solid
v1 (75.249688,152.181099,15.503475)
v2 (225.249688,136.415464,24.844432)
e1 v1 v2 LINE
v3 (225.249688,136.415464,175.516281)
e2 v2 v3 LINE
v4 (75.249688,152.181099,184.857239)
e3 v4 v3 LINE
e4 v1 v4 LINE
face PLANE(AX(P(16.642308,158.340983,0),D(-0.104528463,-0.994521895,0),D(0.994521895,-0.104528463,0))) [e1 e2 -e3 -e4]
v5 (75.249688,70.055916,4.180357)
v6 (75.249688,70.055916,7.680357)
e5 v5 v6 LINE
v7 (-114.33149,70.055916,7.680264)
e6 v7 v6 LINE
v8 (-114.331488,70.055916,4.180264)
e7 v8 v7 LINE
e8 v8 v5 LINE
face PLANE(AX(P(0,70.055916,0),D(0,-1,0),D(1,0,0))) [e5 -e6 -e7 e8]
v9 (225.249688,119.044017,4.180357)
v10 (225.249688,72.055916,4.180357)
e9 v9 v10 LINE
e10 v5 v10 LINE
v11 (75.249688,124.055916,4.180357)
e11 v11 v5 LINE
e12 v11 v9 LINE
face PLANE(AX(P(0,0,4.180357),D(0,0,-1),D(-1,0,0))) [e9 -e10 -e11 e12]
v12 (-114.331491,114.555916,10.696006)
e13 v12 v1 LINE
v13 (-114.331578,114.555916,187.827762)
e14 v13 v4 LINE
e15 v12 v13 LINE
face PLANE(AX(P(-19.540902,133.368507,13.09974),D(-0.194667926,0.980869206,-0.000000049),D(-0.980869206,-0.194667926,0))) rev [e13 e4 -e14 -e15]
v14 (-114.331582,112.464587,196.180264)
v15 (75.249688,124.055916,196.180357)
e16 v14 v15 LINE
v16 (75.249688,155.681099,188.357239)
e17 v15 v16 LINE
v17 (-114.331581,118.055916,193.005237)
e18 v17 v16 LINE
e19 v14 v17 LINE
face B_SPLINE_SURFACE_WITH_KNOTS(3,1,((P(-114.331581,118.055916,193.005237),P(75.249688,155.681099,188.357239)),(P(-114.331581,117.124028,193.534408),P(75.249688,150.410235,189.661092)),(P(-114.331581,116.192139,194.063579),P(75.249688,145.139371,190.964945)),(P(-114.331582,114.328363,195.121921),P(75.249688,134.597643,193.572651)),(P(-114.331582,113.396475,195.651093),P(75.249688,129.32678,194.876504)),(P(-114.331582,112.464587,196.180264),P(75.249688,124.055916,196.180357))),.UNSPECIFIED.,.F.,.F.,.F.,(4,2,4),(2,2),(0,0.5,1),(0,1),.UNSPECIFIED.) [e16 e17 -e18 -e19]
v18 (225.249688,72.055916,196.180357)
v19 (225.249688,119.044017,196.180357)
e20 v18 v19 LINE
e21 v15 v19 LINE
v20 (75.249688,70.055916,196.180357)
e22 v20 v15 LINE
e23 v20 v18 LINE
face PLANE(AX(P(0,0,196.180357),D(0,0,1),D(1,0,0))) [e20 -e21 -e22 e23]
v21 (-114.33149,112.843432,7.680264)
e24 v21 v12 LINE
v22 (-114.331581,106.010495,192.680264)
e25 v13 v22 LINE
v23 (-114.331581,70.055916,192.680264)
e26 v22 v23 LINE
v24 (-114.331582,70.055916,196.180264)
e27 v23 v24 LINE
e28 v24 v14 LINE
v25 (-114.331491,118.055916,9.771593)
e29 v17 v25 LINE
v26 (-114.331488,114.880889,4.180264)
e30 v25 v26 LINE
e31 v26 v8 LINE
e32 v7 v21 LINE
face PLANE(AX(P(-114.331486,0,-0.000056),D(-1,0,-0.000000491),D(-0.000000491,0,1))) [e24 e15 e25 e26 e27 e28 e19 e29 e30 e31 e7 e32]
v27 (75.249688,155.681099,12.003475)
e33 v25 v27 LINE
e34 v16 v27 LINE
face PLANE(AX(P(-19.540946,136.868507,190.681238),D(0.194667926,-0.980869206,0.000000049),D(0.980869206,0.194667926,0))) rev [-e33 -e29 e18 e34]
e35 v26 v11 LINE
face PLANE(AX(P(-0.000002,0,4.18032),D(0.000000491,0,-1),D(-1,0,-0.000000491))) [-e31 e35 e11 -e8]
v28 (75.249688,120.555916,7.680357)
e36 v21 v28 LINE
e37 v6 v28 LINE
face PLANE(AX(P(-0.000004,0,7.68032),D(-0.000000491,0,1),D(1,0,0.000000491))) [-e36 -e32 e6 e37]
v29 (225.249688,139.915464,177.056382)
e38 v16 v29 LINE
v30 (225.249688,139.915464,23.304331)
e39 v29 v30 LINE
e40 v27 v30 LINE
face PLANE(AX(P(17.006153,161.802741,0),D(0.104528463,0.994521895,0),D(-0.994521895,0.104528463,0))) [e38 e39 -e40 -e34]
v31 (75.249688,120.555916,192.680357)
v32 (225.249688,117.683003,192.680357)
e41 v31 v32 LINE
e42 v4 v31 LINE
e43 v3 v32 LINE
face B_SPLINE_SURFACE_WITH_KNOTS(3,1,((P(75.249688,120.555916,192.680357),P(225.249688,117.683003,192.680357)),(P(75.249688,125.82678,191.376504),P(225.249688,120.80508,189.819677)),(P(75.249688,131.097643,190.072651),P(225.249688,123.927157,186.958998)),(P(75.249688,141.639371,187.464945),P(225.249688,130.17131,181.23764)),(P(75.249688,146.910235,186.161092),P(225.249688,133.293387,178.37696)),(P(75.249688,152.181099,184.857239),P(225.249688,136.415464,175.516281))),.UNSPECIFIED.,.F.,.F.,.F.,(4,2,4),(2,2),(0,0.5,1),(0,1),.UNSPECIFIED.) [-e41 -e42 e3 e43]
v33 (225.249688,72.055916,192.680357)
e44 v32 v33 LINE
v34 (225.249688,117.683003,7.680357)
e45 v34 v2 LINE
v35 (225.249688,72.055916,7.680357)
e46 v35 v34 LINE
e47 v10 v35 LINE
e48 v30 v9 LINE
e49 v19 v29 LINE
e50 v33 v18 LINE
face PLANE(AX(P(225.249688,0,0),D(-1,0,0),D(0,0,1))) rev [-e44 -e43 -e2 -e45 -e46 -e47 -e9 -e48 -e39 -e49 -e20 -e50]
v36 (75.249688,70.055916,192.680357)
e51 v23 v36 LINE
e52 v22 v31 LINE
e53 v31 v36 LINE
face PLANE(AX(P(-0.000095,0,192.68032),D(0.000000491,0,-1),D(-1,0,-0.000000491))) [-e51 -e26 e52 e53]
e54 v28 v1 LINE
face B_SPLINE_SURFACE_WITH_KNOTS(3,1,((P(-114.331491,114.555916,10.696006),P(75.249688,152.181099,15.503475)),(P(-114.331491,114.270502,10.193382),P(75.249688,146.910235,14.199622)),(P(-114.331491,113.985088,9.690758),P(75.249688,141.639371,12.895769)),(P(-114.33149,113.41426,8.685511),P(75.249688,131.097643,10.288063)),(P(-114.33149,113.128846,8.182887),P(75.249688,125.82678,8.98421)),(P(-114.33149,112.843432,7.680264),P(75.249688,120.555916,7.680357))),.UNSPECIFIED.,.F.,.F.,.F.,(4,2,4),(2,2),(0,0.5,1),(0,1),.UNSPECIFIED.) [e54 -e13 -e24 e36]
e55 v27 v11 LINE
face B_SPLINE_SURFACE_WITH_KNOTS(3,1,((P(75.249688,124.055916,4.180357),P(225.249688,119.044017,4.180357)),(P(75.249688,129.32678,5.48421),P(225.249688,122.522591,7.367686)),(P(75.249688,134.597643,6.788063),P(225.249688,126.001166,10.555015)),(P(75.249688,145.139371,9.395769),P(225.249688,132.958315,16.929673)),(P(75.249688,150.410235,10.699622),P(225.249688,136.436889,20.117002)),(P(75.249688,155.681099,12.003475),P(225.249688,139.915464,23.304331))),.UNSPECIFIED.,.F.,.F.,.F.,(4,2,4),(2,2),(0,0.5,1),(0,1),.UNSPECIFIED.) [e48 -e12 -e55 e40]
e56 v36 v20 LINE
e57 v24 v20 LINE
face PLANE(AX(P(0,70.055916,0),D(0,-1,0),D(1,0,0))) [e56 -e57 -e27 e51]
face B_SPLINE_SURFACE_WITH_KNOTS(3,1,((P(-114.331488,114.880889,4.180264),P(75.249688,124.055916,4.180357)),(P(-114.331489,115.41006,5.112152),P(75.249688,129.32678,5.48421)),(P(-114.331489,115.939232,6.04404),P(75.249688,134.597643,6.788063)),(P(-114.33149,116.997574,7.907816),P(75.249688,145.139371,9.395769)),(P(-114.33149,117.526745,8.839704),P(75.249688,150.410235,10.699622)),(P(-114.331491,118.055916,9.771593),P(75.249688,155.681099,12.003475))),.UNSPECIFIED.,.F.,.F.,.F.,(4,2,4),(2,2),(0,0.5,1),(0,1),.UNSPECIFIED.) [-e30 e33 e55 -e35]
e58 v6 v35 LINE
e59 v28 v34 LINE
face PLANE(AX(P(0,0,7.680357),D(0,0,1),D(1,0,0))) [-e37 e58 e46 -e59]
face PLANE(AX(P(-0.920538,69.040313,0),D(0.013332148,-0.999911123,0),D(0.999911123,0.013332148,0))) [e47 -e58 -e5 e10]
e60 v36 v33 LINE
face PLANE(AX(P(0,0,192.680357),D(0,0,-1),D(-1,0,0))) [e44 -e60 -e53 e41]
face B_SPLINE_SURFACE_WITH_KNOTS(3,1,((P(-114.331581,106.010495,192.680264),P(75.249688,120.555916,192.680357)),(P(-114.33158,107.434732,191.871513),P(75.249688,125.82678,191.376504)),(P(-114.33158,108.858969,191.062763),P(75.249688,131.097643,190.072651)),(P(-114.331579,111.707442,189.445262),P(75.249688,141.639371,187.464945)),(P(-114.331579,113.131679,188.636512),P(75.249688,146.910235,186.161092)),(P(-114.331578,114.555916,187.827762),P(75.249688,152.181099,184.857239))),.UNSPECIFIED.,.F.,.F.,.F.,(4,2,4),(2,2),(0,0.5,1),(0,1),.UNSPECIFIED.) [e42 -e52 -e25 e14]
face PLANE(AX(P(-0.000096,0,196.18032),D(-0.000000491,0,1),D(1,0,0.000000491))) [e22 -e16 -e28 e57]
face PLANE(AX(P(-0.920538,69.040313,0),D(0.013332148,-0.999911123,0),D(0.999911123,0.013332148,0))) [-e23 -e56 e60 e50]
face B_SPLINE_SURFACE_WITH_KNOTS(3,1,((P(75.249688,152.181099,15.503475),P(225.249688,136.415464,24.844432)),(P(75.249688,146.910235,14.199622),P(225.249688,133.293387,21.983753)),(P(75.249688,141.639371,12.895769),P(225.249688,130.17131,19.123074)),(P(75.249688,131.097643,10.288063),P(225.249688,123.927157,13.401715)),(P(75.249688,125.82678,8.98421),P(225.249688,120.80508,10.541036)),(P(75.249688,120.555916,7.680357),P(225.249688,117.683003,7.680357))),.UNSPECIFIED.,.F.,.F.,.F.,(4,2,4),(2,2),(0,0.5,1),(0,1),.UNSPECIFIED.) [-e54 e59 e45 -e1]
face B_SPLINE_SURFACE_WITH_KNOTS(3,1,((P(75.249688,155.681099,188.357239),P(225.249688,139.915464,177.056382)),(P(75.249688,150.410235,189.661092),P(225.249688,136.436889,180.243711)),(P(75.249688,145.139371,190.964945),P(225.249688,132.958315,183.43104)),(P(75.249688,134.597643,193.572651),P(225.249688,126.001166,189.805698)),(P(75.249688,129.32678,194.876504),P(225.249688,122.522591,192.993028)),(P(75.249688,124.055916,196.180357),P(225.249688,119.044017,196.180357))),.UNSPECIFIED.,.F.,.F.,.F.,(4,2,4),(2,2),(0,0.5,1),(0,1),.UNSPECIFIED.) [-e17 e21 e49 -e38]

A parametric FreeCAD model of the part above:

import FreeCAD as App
import Part
import Sketcher
Q = App.Units.Quantity

doc = App.newDocument("Part")
body = doc.addObject("PartDesign::Body", "Body")

# Sketch on YZ plane
sketch1 = body.newObject("Sketcher::SketchObject", "Sketch")
sketch1.AttachmentSupport = (doc.getObject("YZ_Plane"), [""])
sketch1.MapMode = "FlatFace"
sketch1.AttachmentOffset = App.Placement(App.Vector(0, 0, -114.331486), App.Rotation())
sketch1.addGeometry(Part.LineSegment(App.Vector(70.1, 4.2, 0), App.Vector(70.1, 7.7, 0)), False)
sketch1.addGeometry(Part.LineSegment(App.Vector(70.1, 7.7, 0), App.Vector(112.8, 7.7, 0)), False)
sketch1.addGeometry(Part.LineSegment(App.Vector(112.8, 7.7, 0), App.Vector(114.6, 10.7, 0)), False)
sketch1.addGeometry(Part.LineSegment(App.Vector(114.6, 10.7, 0), App.Vector(114.6, 187.8, 0)), False)
sketch1.addGeometry(Part.LineSegment(App.Vector(114.6, 187.8, 0), App.Vector(106, 192.7, 0)), False)
sketch1.addGeometry(Part.LineSegment(App.Vector(106, 192.7, 0), App.Vector(70.1, 192.7, 0)), False)
sketch1.addGeometry(Part.LineSegment(App.Vector(70.1, 192.7, 0), App.Vector(70.1, 196.2, 0)), False)
sketch1.addGeometry(Part.LineSegment(App.Vector(70.1, 196.2, 0), App.Vector(112.5, 196.2, 0)), False)
sketch1.addGeometry(Part.LineSegment(App.Vector(112.5, 196.2, 0), App.Vector(118.1, 193, 0)), False)
sketch1.addGeometry(Part.LineSegment(App.Vector(118.1, 193, 0), App.Vector(118.1, 9.8, 0)), False)
sketch1.addGeometry(Part.LineSegment(App.Vector(118.1, 9.8, 0), App.Vector(114.9, 4.2, 0)), False)
sketch1.addGeometry(Part.LineSegment(App.Vector(114.9, 4.2, 0), App.Vector(70.1, 4.2, 0)), False)
sketch1.addConstraint(Sketcher.Constraint("Coincident", 0, 2, 1, 1))
sketch1.addConstraint(Sketcher.Constraint("Coincident", 1, 2, 2, 1))
sketch1.addConstraint(Sketcher.Constraint("Coincident", 2, 2, 3, 1))
sketch1.addConstraint(Sketcher.Constraint("Coincident", 3, 2, 4, 1))
sketch1.addConstraint(Sketcher.Constraint("Coincident", 4, 2, 5, 1))
sketch1.addConstraint(Sketcher.Constraint("Coincident", 5, 2, 6, 1))
sketch1.addConstraint(Sketcher.Constraint("Coincident", 6, 2, 7, 1))
sketch1.addConstraint(Sketcher.Constraint("Coincident", 7, 2, 8, 1))
sketch1.addConstraint(Sketcher.Constraint("Coincident", 8, 2, 9, 1))
sketch1.addConstraint(Sketcher.Constraint("Coincident", 9, 2, 10, 1))
sketch1.addConstraint(Sketcher.Constraint("Coincident", 10, 2, 11, 1))
sketch1.addConstraint(Sketcher.Constraint("Coincident", 11, 2, 0, 1))
sketch1.addConstraint(Sketcher.Constraint("Vertical", 0))
sketch1.addConstraint(Sketcher.Constraint("Horizontal", 1))
sketch1.addConstraint(Sketcher.Constraint("Vertical", 3))
sketch1.addConstraint(Sketcher.Constraint("Horizontal", 5))
sketch1.addConstraint(Sketcher.Constraint("Vertical", 6))
sketch1.addConstraint(Sketcher.Constraint("Horizontal", 7))
sketch1.addConstraint(Sketcher.Constraint("Vertical", 9))
sketch1.addConstraint(Sketcher.Constraint("Horizontal", 11))
sketch1.addConstraint(Sketcher.Constraint("Perpendicular", 2, 4))
sketch1.addConstraint(Sketcher.Constraint("Parallel", 4, 8))
sketch1.addConstraint(Sketcher.Constraint("Perpendicular", 8, 10))
sketch1.addConstraint(Sketcher.Constraint("Vertical", 0, 2, 5, 2))
sketch1.addConstraint(Sketcher.Constraint("Equal", 0, 6))
sketch1.addConstraint(Sketcher.Constraint("Equal", 8, 10))
sketch1.addConstraint(Sketcher.Constraint("DistanceY", 0, 1, 0, 2, Q("3.5 mm")))
sketch1.addConstraint(Sketcher.Constraint("DistanceY", 1, 2, 4, 2, Q("185 mm")))
sketch1.addConstraint(Sketcher.Constraint("DistanceX", 5, 2, 8, 2, Q("48 mm")))
sketch1.addConstraint(Sketcher.Constraint("Angle", 2, Q("60.41 deg")))
sketch1.addConstraint(Sketcher.Constraint("DistanceX", 0, 2, 2, 2, Q("44.5 mm")))
sketch1.addConstraint(Sketcher.Constraint("DistanceX", 5, 2, 5, 1, Q("35.95458 mm")))
sketch1.addConstraint(Sketcher.Constraint("DistanceX", 7, 1, 7, 2, Q("42.408671 mm")))
sketch1.addConstraint(Sketcher.Constraint("Distance", 2, Q("3.46804 mm")))
sketch1.addConstraint(Sketcher.Constraint("DistanceX", -1, 1, 1, 2, Q("112.843432 mm")))
sketch1.addConstraint(Sketcher.Constraint("DistanceY", -1, 1, 3, 2, Q("187.827762 mm")))

# Sketch on YZ plane
sketch2 = body.newObject("Sketcher::SketchObject", "Sketch001")
sketch2.AttachmentSupport = (doc.getObject("YZ_Plane"), [""])
sketch2.MapMode = "FlatFace"
sketch2.AttachmentOffset = App.Placement(App.Vector(0, 0, 75.249688), App.Rotation())
sketch2.addGeometry(Part.LineSegment(App.Vector(70.1, 7.7, 0), App.Vector(120.6, 7.7, 0)), False)
sketch2.addGeometry(Part.LineSegment(App.Vector(120.6, 7.7, 0), App.Vector(152.2, 15.5, 0)), False)
sketch2.addGeometry(Part.LineSegment(App.Vector(152.2, 15.5, 0), App.Vector(152.2, 184.9, 0)), False)
sketch2.addGeometry(Part.LineSegment(App.Vector(152.2, 184.9, 0), App.Vector(120.6, 192.7, 0)), False)
sketch2.addGeometry(Part.LineSegment(App.Vector(120.6, 192.7, 0), App.Vector(70.1, 192.7, 0)), False)
sketch2.addGeometry(Part.LineSegment(App.Vector(70.1, 192.7, 0), App.Vector(70.1, 196.2, 0)), False)
sketch2.addGeometry(Part.LineSegment(App.Vector(70.1, 196.2, 0), App.Vector(124.1, 196.2, 0)), False)
sketch2.addGeometry(Part.LineSegment(App.Vector(124.1, 196.2, 0), App.Vector(155.7, 188.4, 0)), False)
sketch2.addGeometry(Part.LineSegment(App.Vector(155.7, 188.4, 0), App.Vector(155.7, 12, 0)), False)
sketch2.addGeometry(Part.LineSegment(App.Vector(155.7, 12, 0), App.Vector(124.1, 4.2, 0)), False)
sketch2.addGeometry(Part.LineSegment(App.Vector(124.1, 4.2, 0), App.Vector(70.1, 4.2, 0)), False)
sketch2.addGeometry(Part.LineSegment(App.Vector(70.1, 4.2, 0), App.Vector(70.1, 7.7, 0)), False)
sketch2.addConstraint(Sketcher.Constraint("Coincident", 0, 2, 1, 1))
sketch2.addConstraint(Sketcher.Constraint("Coincident", 1, 2, 2, 1))
sketch2.addConstraint(Sketcher.Constraint("Coincident", 2, 2, 3, 1))
sketch2.addConstraint(Sketcher.Constraint("Coincident", 3, 2, 4, 1))
sketch2.addConstraint(Sketcher.Constraint("Coincident", 4, 2, 5, 1))
sketch2.addConstraint(Sketcher.Constraint("Coincident", 5, 2, 6, 1))
sketch2.addConstraint(Sketcher.Constraint("Coincident", 6, 2, 7, 1))
sketch2.addConstraint(Sketcher.Constraint("Coincident", 7, 2, 8, 1))
sketch2.addConstraint(Sketcher.Constraint("Coincident", 8, 2, 9, 1))
sketch2.addConstraint(Sketcher.Constraint("Coincident", 9, 2, 10, 1))
sketch2.addConstraint(Sketcher.Constraint("Coincident", 10, 2, 11, 1))
sketch2.addConstraint(Sketcher.Constraint("Coincident", 11, 2, 0, 1))
sketch2.addConstraint(Sketcher.Constraint("Horizontal", 0))
sketch2.addConstraint(Sketcher.Constraint("Vertical", 2))
sketch2.addConstraint(Sketcher.Constraint("Horizontal", 4))
sketch2.addConstraint(Sketcher.Constraint("Vertical", 5))
sketch2.addConstraint(Sketcher.Constraint("Horizontal", 6))
sketch2.addConstraint(Sketcher.Constraint("Vertical", 8))
sketch2.addConstraint(Sketcher.Constraint("Horizontal", 10))
sketch2.addConstraint(Sketcher.Constraint("Vertical", 11))
sketch2.addConstraint(Sketcher.Constraint("Parallel", 3, 7))
sketch2.addConstraint(Sketcher.Constraint("Parallel", 1, 9))
sketch2.addConstraint(Sketcher.Constraint("Vertical", 0, 2, 3, 2))
sketch2.addConstraint(Sketcher.Constraint("Vertical", 6, 2, 9, 2))
sketch2.addConstraint(Sketcher.Constraint("Vertical", 5, 2, 10, 2))
sketch2.addConstraint(Sketcher.Constraint("Equal", 5, 11))
sketch2.addConstraint(Sketcher.Constraint("Equal", 1, 3))
sketch2.addConstraint(Sketcher.Constraint("Equal", 3, 7))
sketch2.addConstraint(Sketcher.Constraint("DistanceX", 6, 1, 6, 2, Q("54 mm")))
sketch2.addConstraint(Sketcher.Constraint("DistanceX", 0, 1, 0, 2, Q("50.5 mm")))
sketch2.addConstraint(Sketcher.Constraint("DistanceY", 5, 1, 5, 2, Q("3.5 mm")))
sketch2.addConstraint(Sketcher.Constraint("DistanceY", 0, 2, 3, 2, Q("185 mm")))
sketch2.addConstraint(Sketcher.Constraint("DistanceX", -1, 1, 1, 2, Q("152.181099 mm")))
sketch2.addConstraint(Sketcher.Constraint("Distance", 1, Q("32.578419 mm")))
sketch2.addConstraint(Sketcher.Constraint("DistanceY", 2, 1, 2, 2, Q("169.353764 mm")))
sketch2.addConstraint(Sketcher.Constraint("DistanceY", -1, 1, 2, 2, Q("184.857239 mm")))

additiveloft = body.newObject("PartDesign::AdditiveLoft", "AdditiveLoft")
additiveloft.Profile = sketch1
additiveloft.Sections = [sketch2]

# Sketch on YZ plane
sketch3 = body.newObject("Sketcher::SketchObject", "Sketch002")
sketch3.AttachmentSupport = (doc.getObject("YZ_Plane"), [""])
sketch3.MapMode = "FlatFace"
sketch3.AttachmentOffset = App.Placement(App.Vector(0, 0, 75.249688), App.Rotation())
sketch3.addGeometry(Part.LineSegment(App.Vector(70.1, 7.7, 0), App.Vector(120.6, 7.7, 0)), False)
sketch3.addGeometry(Part.LineSegment(App.Vector(120.6, 7.7, 0), App.Vector(152.2, 15.5, 0)), False)
sketch3.addGeometry(Part.LineSegment(App.Vector(152.2, 15.5, 0), App.Vector(152.2, 184.9, 0)), False)
sketch3.addGeometry(Part.LineSegment(App.Vector(152.2, 184.9, 0), App.Vector(120.6, 192.7, 0)), False)
sketch3.addGeometry(Part.LineSegment(App.Vector(120.6, 192.7, 0), App.Vector(70.1, 192.7, 0)), False)
sketch3.addGeometry(Part.LineSegment(App.Vector(70.1, 192.7, 0), App.Vector(70.1, 196.2, 0)), False)
sketch3.addGeometry(Part.LineSegment(App.Vector(70.1, 196.2, 0), App.Vector(124.1, 196.2, 0)), False)
sketch3.addGeometry(Part.LineSegment(App.Vector(124.1, 196.2, 0), App.Vector(155.7, 188.4, 0)), False)
sketch3.addGeometry(Part.LineSegment(App.Vector(155.7, 188.4, 0), App.Vector(155.7, 12, 0)), False)
sketch3.addGeometry(Part.LineSegment(App.Vector(155.7, 12, 0), App.Vector(124.1, 4.2, 0)), False)
sketch3.addGeometry(Part.LineSegment(App.Vector(124.1, 4.2, 0), App.Vector(70.1, 4.2, 0)), False)
sketch3.addGeometry(Part.LineSegment(App.Vector(70.1, 4.2, 0), App.Vector(70.1, 7.7, 0)), False)
sketch3.addConstraint(Sketcher.Constraint("Coincident", 0, 2, 1, 1))
sketch3.addConstraint(Sketcher.Constraint("Coincident", 1, 2, 2, 1))
sketch3.addConstraint(Sketcher.Constraint("Coincident", 2, 2, 3, 1))
sketch3.addConstraint(Sketcher.Constraint("Coincident", 3, 2, 4, 1))
sketch3.addConstraint(Sketcher.Constraint("Coincident", 4, 2, 5, 1))
sketch3.addConstraint(Sketcher.Constraint("Coincident", 5, 2, 6, 1))
sketch3.addConstraint(Sketcher.Constraint("Coincident", 6, 2, 7, 1))
sketch3.addConstraint(Sketcher.Constraint("Coincident", 7, 2, 8, 1))
sketch3.addConstraint(Sketcher.Constraint("Coincident", 8, 2, 9, 1))
sketch3.addConstraint(Sketcher.Constraint("Coincident", 9, 2, 10, 1))
sketch3.addConstraint(Sketcher.Constraint("Coincident", 10, 2, 11, 1))
sketch3.addConstraint(Sketcher.Constraint("Coincident", 11, 2, 0, 1))
sketch3.addConstraint(Sketcher.Constraint("Horizontal", 0))
sketch3.addConstraint(Sketcher.Constraint("Vertical", 2))
sketch3.addConstraint(Sketcher.Constraint("Horizontal", 4))
sketch3.addConstraint(Sketcher.Constraint("Vertical", 5))
sketch3.addConstraint(Sketcher.Constraint("Horizontal", 6))
sketch3.addConstraint(Sketcher.Constraint("Vertical", 8))
sketch3.addConstraint(Sketcher.Constraint("Horizontal", 10))
sketch3.addConstraint(Sketcher.Constraint("Vertical", 11))
sketch3.addConstraint(Sketcher.Constraint("Parallel", 3, 7))
sketch3.addConstraint(Sketcher.Constraint("Parallel", 1, 9))
sketch3.addConstraint(Sketcher.Constraint("Vertical", 0, 2, 3, 2))
sketch3.addConstraint(Sketcher.Constraint("Vertical", 6, 2, 9, 2))
sketch3.addConstraint(Sketcher.Constraint("Vertical", 5, 2, 10, 2))
sketch3.addConstraint(Sketcher.Constraint("Equal", 5, 11))
sketch3.addConstraint(Sketcher.Constraint("Equal", 1, 3))
sketch3.addConstraint(Sketcher.Constraint("Equal", 3, 7))
sketch3.addConstraint(Sketcher.Constraint("DistanceX", 6, 1, 6, 2, Q("54 mm")))
sketch3.addConstraint(Sketcher.Constraint("DistanceX", 0, 1, 0, 2, Q("50.5 mm")))
sketch3.addConstraint(Sketcher.Constraint("DistanceY", 5, 1, 5, 2, Q("3.5 mm")))
sketch3.addConstraint(Sketcher.Constraint("DistanceY", 0, 2, 3, 2, Q("185 mm")))
sketch3.addConstraint(Sketcher.Constraint("DistanceX", -1, 1, 1, 2, Q("152.181099 mm")))
sketch3.addConstraint(Sketcher.Constraint("Distance", 1, Q("32.578419 mm")))
sketch3.addConstraint(Sketcher.Constraint("DistanceY", 2, 1, 2, 2, Q("169.353764 mm")))
sketch3.addConstraint(Sketcher.Constraint("DistanceY", -1, 1, 2, 2, Q("184.857239 mm")))

# Sketch on YZ plane
sketch4 = body.newObject("Sketcher::SketchObject", "Sketch003")
sketch4.AttachmentSupport = (doc.getObject("YZ_Plane"), [""])
sketch4.MapMode = "FlatFace"
sketch4.AttachmentOffset = App.Placement(App.Vector(0, 0, 225.249688), App.Rotation())
sketch4.addGeometry(Part.LineSegment(App.Vector(72.1, 7.7, 0), App.Vector(117.7, 7.7, 0)), False)
sketch4.addGeometry(Part.LineSegment(App.Vector(117.7, 7.7, 0), App.Vector(136.4, 24.8, 0)), False)
sketch4.addGeometry(Part.LineSegment(App.Vector(136.4, 24.8, 0), App.Vector(136.4, 175.5, 0)), False)
sketch4.addGeometry(Part.LineSegment(App.Vector(136.4, 175.5, 0), App.Vector(117.7, 192.7, 0)), False)
sketch4.addGeometry(Part.LineSegment(App.Vector(117.7, 192.7, 0), App.Vector(72.1, 192.7, 0)), False)
sketch4.addGeometry(Part.LineSegment(App.Vector(72.1, 192.7, 0), App.Vector(72.1, 196.2, 0)), False)
sketch4.addGeometry(Part.LineSegment(App.Vector(72.1, 196.2, 0), App.Vector(119, 196.2, 0)), False)
sketch4.addGeometry(Part.LineSegment(App.Vector(119, 196.2, 0), App.Vector(139.9, 177.1, 0)), False)
sketch4.addGeometry(Part.LineSegment(App.Vector(139.9, 177.1, 0), App.Vector(139.9, 23.3, 0)), False)
sketch4.addGeometry(Part.LineSegment(App.Vector(139.9, 23.3, 0), App.Vector(119, 4.2, 0)), False)
sketch4.addGeometry(Part.LineSegment(App.Vector(119, 4.2, 0), App.Vector(72.1, 4.2, 0)), False)
sketch4.addGeometry(Part.LineSegment(App.Vector(72.1, 4.2, 0), App.Vector(72.1, 7.7, 0)), False)
sketch4.addConstraint(Sketcher.Constraint("Coincident", 0, 2, 1, 1))
sketch4.addConstraint(Sketcher.Constraint("Coincident", 1, 2, 2, 1))
sketch4.addConstraint(Sketcher.Constraint("Coincident", 2, 2, 3, 1))
sketch4.addConstraint(Sketcher.Constraint("Coincident", 3, 2, 4, 1))
sketch4.addConstraint(Sketcher.Constraint("Coincident", 4, 2, 5, 1))
sketch4.addConstraint(Sketcher.Constraint("Coincident", 5, 2, 6, 1))
sketch4.addConstraint(Sketcher.Constraint("Coincident", 6, 2, 7, 1))
sketch4.addConstraint(Sketcher.Constraint("Coincident", 7, 2, 8, 1))
sketch4.addConstraint(Sketcher.Constraint("Coincident", 8, 2, 9, 1))
sketch4.addConstraint(Sketcher.Constraint("Coincident", 9, 2, 10, 1))
sketch4.addConstraint(Sketcher.Constraint("Coincident", 10, 2, 11, 1))
sketch4.addConstraint(Sketcher.Constraint("Coincident", 11, 2, 0, 1))
sketch4.addConstraint(Sketcher.Constraint("Horizontal", 0))
sketch4.addConstraint(Sketcher.Constraint("Vertical", 2))
sketch4.addConstraint(Sketcher.Constraint("Horizontal", 4))
sketch4.addConstraint(Sketcher.Constraint("Vertical", 5))
sketch4.addConstraint(Sketcher.Constraint("Horizontal", 6))
sketch4.addConstraint(Sketcher.Constraint("Vertical", 8))
sketch4.addConstraint(Sketcher.Constraint("Horizontal", 10))
sketch4.addConstraint(Sketcher.Constraint("Vertical", 11))
sketch4.addConstraint(Sketcher.Constraint("Parallel", 3, 7))
sketch4.addConstraint(Sketcher.Constraint("Parallel", 1, 9))
sketch4.addConstraint(Sketcher.Constraint("Vertical", 0, 2, 3, 2))
sketch4.addConstraint(Sketcher.Constraint("Vertical", 6, 2, 9, 2))
sketch4.addConstraint(Sketcher.Constraint("Vertical", 5, 2, 10, 2))
sketch4.addConstraint(Sketcher.Constraint("Equal", 5, 11))
sketch4.addConstraint(Sketcher.Constraint("Equal", 1, 3))
sketch4.addConstraint(Sketcher.Constraint("DistanceY", 5, 1, 5, 2, Q("3.5 mm")))
sketch4.addConstraint(Sketcher.Constraint("DistanceY", 0, 2, 3, 2, Q("185 mm")))
sketch4.addConstraint(Sketcher.Constraint("DistanceX", 2, 2, 7, 2, Q("3.5 mm")))
sketch4.addConstraint(Sketcher.Constraint("DistanceX", 6, 1, 6, 2, Q("46.988101 mm")))
sketch4.addConstraint(Sketcher.Constraint("Distance", 1, Q("25.4069 mm")))
sketch4.addConstraint(Sketcher.Constraint("DistanceY", 2, 1, 2, 2, Q("150.671849 mm")))
sketch4.addConstraint(Sketcher.Constraint("DistanceY", 8, 2, 8, 1, Q("153.752051 mm")))
sketch4.addConstraint(Sketcher.Constraint("DistanceY", -1, 1, 2, 2, Q("175.516281 mm")))
sketch4.addConstraint(Sketcher.Constraint("DistanceX", -1, 1, 0, 2, Q("117.683003 mm")))

additiveloft2 = body.newObject("PartDesign::AdditiveLoft", "AdditiveLoft001")
additiveloft2.Profile = sketch3
additiveloft2.Sections = [sketch4]

doc.recompute()
